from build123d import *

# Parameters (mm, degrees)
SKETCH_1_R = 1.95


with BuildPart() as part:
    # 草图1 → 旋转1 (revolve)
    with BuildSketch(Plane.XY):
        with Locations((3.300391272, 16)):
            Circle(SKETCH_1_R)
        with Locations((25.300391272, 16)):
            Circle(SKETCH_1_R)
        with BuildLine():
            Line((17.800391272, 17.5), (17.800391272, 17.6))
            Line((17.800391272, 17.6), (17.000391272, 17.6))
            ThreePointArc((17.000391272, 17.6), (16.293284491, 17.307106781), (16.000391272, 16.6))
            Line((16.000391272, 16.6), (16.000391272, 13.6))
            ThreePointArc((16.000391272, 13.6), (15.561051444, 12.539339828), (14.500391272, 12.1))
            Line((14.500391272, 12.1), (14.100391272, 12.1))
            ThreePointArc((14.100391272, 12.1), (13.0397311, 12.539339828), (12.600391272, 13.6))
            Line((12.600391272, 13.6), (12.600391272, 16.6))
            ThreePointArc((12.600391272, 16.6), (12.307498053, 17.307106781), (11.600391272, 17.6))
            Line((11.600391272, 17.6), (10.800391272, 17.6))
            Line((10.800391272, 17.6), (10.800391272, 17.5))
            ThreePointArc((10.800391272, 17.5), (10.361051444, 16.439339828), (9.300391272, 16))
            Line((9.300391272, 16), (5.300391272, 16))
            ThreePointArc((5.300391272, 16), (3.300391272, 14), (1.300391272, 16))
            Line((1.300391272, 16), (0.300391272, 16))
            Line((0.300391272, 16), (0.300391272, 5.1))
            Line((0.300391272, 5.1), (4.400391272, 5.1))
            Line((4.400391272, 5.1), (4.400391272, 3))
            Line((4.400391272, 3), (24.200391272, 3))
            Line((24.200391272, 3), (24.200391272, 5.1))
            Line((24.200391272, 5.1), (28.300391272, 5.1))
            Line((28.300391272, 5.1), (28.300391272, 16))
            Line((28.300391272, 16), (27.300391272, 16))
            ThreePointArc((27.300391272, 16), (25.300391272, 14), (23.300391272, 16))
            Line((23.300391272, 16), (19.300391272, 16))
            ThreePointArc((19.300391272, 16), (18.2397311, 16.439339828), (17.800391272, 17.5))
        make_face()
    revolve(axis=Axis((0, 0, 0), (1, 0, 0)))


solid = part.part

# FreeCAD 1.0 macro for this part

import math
import FreeCAD as App
import Part
import Sketcher
from FreeCAD import Vector
Q = App.Units.Quantity

doc = App.newDocument("Part")
body = doc.addObject("PartDesign::Body", "Body")
body.AllowCompound = True

# Sketch on XY plane
sketch1 = body.newObject("Sketcher::SketchObject", "Sketch")
sketch1.AttachmentSupport = (doc.getObject("XY_Plane"), [""])
sketch1.MapMode = "FlatFace"
sketch1.addGeometry(Part.Circle(Vector(3.3, 16, 0), Vector(0, 0, 1), 1.95), False)
sketch1.addGeometry(Part.Circle(Vector(25.3, 16, 0), Vector(0, 0, 1), 1.95), False)
sketch1.addGeometry(Part.LineSegment(Vector(17.8, 17.5, 0), Vector(17.8, 17.6, 0)), False)
sketch1.addGeometry(Part.LineSegment(Vector(17.8, 17.6, 0), Vector(17, 17.6, 0)), False)
sketch1.addGeometry(Part.ArcOfCircle(Part.Circle(Vector(17, 16.6, 0), Vector(0, 0, 1), 1), math.radians(90), math.radians(180)), False)
sketch1.addGeometry(Part.LineSegment(Vector(16, 16.6, 0), Vector(16, 13.6, 0)), False)
sketch1.addGeometry(Part.ArcOfCircle(Part.Circle(Vector(14.5, 13.6, 0), Vector(0, 0, 1), 1.5), math.radians(-90), math.radians(0)), False)
sketch1.addGeometry(Part.LineSegment(Vector(14.5, 12.1, 0), Vector(14.1, 12.1, 0)), False)
sketch1.addGeometry(Part.ArcOfCircle(Part.Circle(Vector(14.1, 13.6, 0), Vector(0, 0, 1), 1.5), math.radians(180), math.radians(270)), False)
sketch1.addGeometry(Part.LineSegment(Vector(12.6, 13.6, 0), Vector(12.6, 16.6, 0)), False)
sketch1.addGeometry(Part.ArcOfCircle(Part.Circle(Vector(11.6, 16.6, 0), Vector(0, 0, 1), 1), math.radians(0), math.radians(90)), False)
sketch1.addGeometry(Part.LineSegment(Vector(11.6, 17.6, 0), Vector(10.8, 17.6, 0)), False)
sketch1.addGeometry(Part.LineSegment(Vector(10.8, 17.6, 0), Vector(10.8, 17.5, 0)), False)
sketch1.addGeometry(Part.ArcOfCircle(Part.Circle(Vector(9.3, 17.5, 0), Vector(0, 0, 1), 1.5), math.radians(-90), math.radians(0)), False)
sketch1.addGeometry(Part.LineSegment(Vector(9.3, 16, 0), Vector(5.3, 16, 0)), False)
sketch1.addGeometry(Part.ArcOfCircle(Part.Circle(Vector(3.3, 16, 0), Vector(0, 0, 1), 2), math.radians(180), math.radians(360)), False)
sketch1.addGeometry(Part.LineSegment(Vector(1.3, 16, 0), Vector(0.3, 16, 0)), False)
sketch1.addGeometry(Part.LineSegment(Vector(0.3, 16, 0), Vector(0.3, 5.1, 0)), False)
sketch1.addGeometry(Part.LineSegment(Vector(0.3, 5.1, 0), Vector(4.4, 5.1, 0)), False)
sketch1.addGeometry(Part.LineSegment(Vector(4.4, 5.1, 0), Vector(4.4, 3, 0)), False)
sketch1.addGeometry(Part.LineSegment(Vector(4.4, 3, 0), Vector(24.2, 3, 0)), False)
sketch1.addGeometry(Part.LineSegment(Vector(24.2, 3, 0), Vector(24.2, 5.1, 0)), False)
sketch1.addGeometry(Part.LineSegment(Vector(24.2, 5.1, 0), Vector(28.3, 5.1, 0)), False)
sketch1.addGeometry(Part.LineSegment(Vector(28.3, 5.1, 0), Vector(28.3, 16, 0)), False)
sketch1.addGeometry(Part.LineSegment(Vector(28.3, 16, 0), Vector(27.3, 16, 0)), False)
sketch1.addGeometry(Part.ArcOfCircle(Part.Circle(Vector(25.3, 16, 0), Vector(0, 0, 1), 2), math.radians(180), math.radians(360)), False)
sketch1.addGeometry(Part.LineSegment(Vector(23.3, 16, 0), Vector(19.3, 16, 0)), False)
sketch1.addGeometry(Part.ArcOfCircle(Part.Circle(Vector(19.3, 17.5, 0), Vector(0, 0, 1), 1.5), math.radians(180), math.radians(270)), False)
sketch1.addConstraint(Sketcher.Constraint("Coincident", 2, 2, 3, 1))
sketch1.addConstraint(Sketcher.Constraint("Tangent", 3, 2, 4, 1))
sketch1.addConstraint(Sketcher.Constraint("Tangent", 4, 2, 5, 1))
sketch1.addConstraint(Sketcher.Constraint("Tangent", 5, 2, 6, 2))
sketch1.addConstraint(Sketcher.Constraint("Tangent", 6, 1, 7, 1))
sketch1.addConstraint(Sketcher.Constraint("Tangent", 7, 2, 8, 2))
sketch1.addConstraint(Sketcher.Constraint("Tangent", 8, 1, 9, 1))
sketch1.addConstraint(Sketcher.Constraint("Tangent", 9, 2, 10, 1))
sketch1.addConstraint(Sketcher.Constraint("Tangent", 10, 2, 11, 1))
sketch1.addConstraint(Sketcher.Constraint("Coincident", 11, 2, 12, 1))
sketch1.addConstraint(Sketcher.Constraint("Tangent", 12, 2, 13, 2))
sketch1.addConstraint(Sketcher.Constraint("Tangent", 13, 1, 14, 1))
sketch1.addConstraint(Sketcher.Constraint("Coincident", 14, 2, 15, 2))
sketch1.addConstraint(Sketcher.Constraint("Coincident", 15, 1, 16, 1))
sketch1.addConstraint(Sketcher.Constraint("Coincident", 16, 2, 17, 1))
sketch1.addConstraint(Sketcher.Constraint("Coincident", 17, 2, 18, 1))
sketch1.addConstraint(Sketcher.Constraint("Coincident", 18, 2, 19, 1))
sketch1.addConstraint(Sketcher.Constraint("Coincident", 19, 2, 20, 1))
sketch1.addConstraint(Sketcher.Constraint("Coincident", 20, 2, 21, 1))
sketch1.addConstraint(Sketcher.Constraint("Coincident", 21, 2, 22, 1))
sketch1.addConstraint(Sketcher.Constraint("Coincident", 22, 2, 23, 1))
sketch1.addConstraint(Sketcher.Constraint("Coincident", 23, 2, 24, 1))
sketch1.addConstraint(Sketcher.Constraint("Coincident", 24, 2, 25, 2))
sketch1.addConstraint(Sketcher.Constraint("Coincident", 25, 1, 26, 1))
sketch1.addConstraint(Sketcher.Constraint("Tangent", 26, 2, 27, 2))
sketch1.addConstraint(Sketcher.Constraint("Tangent", 27, 1, 2, 1))
sketch1.addConstraint(Sketcher.Constraint("Vertical", 2))
sketch1.addConstraint(Sketcher.Constraint("Horizontal", 3))
sketch1.addConstraint(Sketcher.Constraint("Vertical", 5))
sketch1.addConstraint(Sketcher.Constraint("Horizontal", 7))
sketch1.addConstraint(Sketcher.Constraint("Vertical", 9))
sketch1.addConstraint(Sketcher.Constraint("Horizontal", 11))
sketch1.addConstraint(Sketcher.Constraint("Vertical", 12))
sketch1.addConstraint(Sketcher.Constraint("Horizontal", 14))
sketch1.addConstraint(Sketcher.Constraint("Horizontal", 16))
sketch1.addConstraint(Sketcher.Constraint("Vertical", 17))
sketch1.addConstraint(Sketcher.Constraint("Horizontal", 18))
sketch1.addConstraint(Sketcher.Constraint("Vertical", 19))
sketch1.addConstraint(Sketcher.Constraint("Horizontal", 20))
sketch1.addConstraint(Sketcher.Constraint("Vertical", 21))
sketch1.addConstraint(Sketcher.Constraint("Horizontal", 22))
sketch1.addConstraint(Sketcher.Constraint("Vertical", 23))
sketch1.addConstraint(Sketcher.Constraint("Horizontal", 24))
sketch1.addConstraint(Sketcher.Constraint("Horizontal", 26))
sketch1.addConstraint(Sketcher.Constraint("Coincident", 15, 3, 0, 3))
sketch1.addConstraint(Sketcher.Constraint("Coincident", 25, 3, 1, 3))
sketch1.addConstraint(Sketcher.Constraint("Equal", 0, 1))
sketch1.addConstraint(Sketcher.Constraint("Equal", 6, 8))
sketch1.addConstraint(Sketcher.Constraint("Equal", 4, 10))
sketch1.addConstraint(Sketcher.Constraint("Equal", 8, 13))
sketch1.addConstraint(Sketcher.Constraint("Equal", 15, 25))
sketch1.addConstraint(Sketcher.Constraint("Equal", 13, 27))
sketch1.addConstraint(Sketcher.Constraint("Horizontal", 0, 3, 1, 3))
sketch1.addConstraint(Sketcher.Constraint("Horizontal", 4, 3, 10, 3))
sketch1.addConstraint(Sketcher.Constraint("Horizontal", 13, 3, 27, 3))
sketch1.addConstraint(Sketcher.Constraint("Horizontal", 25, 3, 13, 1))
sketch1.addConstraint(Sketcher.Constraint("Horizontal", 14, 2, 15, 1))
sketch1.addConstraint(Sketcher.Constraint("Horizontal", 18, 2, 21, 2))
sketch1.addConstraint(Sketcher.Constraint("Horizontal", 16, 2, 23, 2))
sketch1.addConstraint(Sketcher.Constraint("Equal", 3, 11))
sketch1.addConstraint(Sketcher.Constraint("Equal", 18, 22))
sketch1.addConstraint(Sketcher.Constraint("Equal", 16, 24))
sketch1.addConstraint(Sketcher.Constraint("Equal", 14, 26))
sketch1.addConstraint(Sketcher.Constraint("Radius", 4, Q("1 mm")))
sketch1.addConstraint(Sketcher.Constraint("Radius", 15, Q("2 mm")))
sketch1.addConstraint(Sketcher.Constraint("Diameter", 0, Q("3.9 mm")))
sketch1.addConstraint(Sketcher.Constraint("Radius", 6, Q("1.5 mm")))
sketch1.addConstraint(Sketcher.Constraint("DistanceX", 14, 2, 14, 1, Q("4 mm")))
sketch1.addConstraint(Sketcher.Constraint("DistanceX", 16, 2, 16, 1, Q("1 mm")))
sketch1.addConstraint(Sketcher.Constraint("DistanceY", 5, 2, 5, 1, Q("3 mm")))
sketch1.addConstraint(Sketcher.Constraint("DistanceX", 3, 2, 3, 1, Q("0.8 mm")))
sketch1.addConstraint(Sketcher.Constraint("DistanceX", 7, 2, 7, 1, Q("0.4 mm")))
sketch1.addConstraint(Sketcher.Constraint("DistanceX", 18, 1, 18, 2, Q("4.1 mm")))
sketch1.addConstraint(Sketcher.Constraint("DistanceY", 2, 1, 2, 2, Q("0.1 mm")))
sketch1.addConstraint(Sketcher.Constraint("DistanceY", 17, 2, 17, 1, Q("10.9 mm")))
sketch1.addConstraint(Sketcher.Constraint("DistanceY", 19, 2, 19, 1, Q("2.1 mm")))
sketch1.addConstraint(Sketcher.Constraint("DistanceY", -1, 1, 0, 3, Q("16 mm")))
sketch1.addConstraint(Sketcher.Constraint("DistanceX", -1, 1, 0, 3, Q("3.300391 mm")))
revolution = body.newObject("PartDesign::Revolution", "Revolution")
revolution.Profile = sketch1
revolution.ReferenceAxis = (sketch1, ["H_Axis"])
revolution.Angle = 360

doc.recompute()
